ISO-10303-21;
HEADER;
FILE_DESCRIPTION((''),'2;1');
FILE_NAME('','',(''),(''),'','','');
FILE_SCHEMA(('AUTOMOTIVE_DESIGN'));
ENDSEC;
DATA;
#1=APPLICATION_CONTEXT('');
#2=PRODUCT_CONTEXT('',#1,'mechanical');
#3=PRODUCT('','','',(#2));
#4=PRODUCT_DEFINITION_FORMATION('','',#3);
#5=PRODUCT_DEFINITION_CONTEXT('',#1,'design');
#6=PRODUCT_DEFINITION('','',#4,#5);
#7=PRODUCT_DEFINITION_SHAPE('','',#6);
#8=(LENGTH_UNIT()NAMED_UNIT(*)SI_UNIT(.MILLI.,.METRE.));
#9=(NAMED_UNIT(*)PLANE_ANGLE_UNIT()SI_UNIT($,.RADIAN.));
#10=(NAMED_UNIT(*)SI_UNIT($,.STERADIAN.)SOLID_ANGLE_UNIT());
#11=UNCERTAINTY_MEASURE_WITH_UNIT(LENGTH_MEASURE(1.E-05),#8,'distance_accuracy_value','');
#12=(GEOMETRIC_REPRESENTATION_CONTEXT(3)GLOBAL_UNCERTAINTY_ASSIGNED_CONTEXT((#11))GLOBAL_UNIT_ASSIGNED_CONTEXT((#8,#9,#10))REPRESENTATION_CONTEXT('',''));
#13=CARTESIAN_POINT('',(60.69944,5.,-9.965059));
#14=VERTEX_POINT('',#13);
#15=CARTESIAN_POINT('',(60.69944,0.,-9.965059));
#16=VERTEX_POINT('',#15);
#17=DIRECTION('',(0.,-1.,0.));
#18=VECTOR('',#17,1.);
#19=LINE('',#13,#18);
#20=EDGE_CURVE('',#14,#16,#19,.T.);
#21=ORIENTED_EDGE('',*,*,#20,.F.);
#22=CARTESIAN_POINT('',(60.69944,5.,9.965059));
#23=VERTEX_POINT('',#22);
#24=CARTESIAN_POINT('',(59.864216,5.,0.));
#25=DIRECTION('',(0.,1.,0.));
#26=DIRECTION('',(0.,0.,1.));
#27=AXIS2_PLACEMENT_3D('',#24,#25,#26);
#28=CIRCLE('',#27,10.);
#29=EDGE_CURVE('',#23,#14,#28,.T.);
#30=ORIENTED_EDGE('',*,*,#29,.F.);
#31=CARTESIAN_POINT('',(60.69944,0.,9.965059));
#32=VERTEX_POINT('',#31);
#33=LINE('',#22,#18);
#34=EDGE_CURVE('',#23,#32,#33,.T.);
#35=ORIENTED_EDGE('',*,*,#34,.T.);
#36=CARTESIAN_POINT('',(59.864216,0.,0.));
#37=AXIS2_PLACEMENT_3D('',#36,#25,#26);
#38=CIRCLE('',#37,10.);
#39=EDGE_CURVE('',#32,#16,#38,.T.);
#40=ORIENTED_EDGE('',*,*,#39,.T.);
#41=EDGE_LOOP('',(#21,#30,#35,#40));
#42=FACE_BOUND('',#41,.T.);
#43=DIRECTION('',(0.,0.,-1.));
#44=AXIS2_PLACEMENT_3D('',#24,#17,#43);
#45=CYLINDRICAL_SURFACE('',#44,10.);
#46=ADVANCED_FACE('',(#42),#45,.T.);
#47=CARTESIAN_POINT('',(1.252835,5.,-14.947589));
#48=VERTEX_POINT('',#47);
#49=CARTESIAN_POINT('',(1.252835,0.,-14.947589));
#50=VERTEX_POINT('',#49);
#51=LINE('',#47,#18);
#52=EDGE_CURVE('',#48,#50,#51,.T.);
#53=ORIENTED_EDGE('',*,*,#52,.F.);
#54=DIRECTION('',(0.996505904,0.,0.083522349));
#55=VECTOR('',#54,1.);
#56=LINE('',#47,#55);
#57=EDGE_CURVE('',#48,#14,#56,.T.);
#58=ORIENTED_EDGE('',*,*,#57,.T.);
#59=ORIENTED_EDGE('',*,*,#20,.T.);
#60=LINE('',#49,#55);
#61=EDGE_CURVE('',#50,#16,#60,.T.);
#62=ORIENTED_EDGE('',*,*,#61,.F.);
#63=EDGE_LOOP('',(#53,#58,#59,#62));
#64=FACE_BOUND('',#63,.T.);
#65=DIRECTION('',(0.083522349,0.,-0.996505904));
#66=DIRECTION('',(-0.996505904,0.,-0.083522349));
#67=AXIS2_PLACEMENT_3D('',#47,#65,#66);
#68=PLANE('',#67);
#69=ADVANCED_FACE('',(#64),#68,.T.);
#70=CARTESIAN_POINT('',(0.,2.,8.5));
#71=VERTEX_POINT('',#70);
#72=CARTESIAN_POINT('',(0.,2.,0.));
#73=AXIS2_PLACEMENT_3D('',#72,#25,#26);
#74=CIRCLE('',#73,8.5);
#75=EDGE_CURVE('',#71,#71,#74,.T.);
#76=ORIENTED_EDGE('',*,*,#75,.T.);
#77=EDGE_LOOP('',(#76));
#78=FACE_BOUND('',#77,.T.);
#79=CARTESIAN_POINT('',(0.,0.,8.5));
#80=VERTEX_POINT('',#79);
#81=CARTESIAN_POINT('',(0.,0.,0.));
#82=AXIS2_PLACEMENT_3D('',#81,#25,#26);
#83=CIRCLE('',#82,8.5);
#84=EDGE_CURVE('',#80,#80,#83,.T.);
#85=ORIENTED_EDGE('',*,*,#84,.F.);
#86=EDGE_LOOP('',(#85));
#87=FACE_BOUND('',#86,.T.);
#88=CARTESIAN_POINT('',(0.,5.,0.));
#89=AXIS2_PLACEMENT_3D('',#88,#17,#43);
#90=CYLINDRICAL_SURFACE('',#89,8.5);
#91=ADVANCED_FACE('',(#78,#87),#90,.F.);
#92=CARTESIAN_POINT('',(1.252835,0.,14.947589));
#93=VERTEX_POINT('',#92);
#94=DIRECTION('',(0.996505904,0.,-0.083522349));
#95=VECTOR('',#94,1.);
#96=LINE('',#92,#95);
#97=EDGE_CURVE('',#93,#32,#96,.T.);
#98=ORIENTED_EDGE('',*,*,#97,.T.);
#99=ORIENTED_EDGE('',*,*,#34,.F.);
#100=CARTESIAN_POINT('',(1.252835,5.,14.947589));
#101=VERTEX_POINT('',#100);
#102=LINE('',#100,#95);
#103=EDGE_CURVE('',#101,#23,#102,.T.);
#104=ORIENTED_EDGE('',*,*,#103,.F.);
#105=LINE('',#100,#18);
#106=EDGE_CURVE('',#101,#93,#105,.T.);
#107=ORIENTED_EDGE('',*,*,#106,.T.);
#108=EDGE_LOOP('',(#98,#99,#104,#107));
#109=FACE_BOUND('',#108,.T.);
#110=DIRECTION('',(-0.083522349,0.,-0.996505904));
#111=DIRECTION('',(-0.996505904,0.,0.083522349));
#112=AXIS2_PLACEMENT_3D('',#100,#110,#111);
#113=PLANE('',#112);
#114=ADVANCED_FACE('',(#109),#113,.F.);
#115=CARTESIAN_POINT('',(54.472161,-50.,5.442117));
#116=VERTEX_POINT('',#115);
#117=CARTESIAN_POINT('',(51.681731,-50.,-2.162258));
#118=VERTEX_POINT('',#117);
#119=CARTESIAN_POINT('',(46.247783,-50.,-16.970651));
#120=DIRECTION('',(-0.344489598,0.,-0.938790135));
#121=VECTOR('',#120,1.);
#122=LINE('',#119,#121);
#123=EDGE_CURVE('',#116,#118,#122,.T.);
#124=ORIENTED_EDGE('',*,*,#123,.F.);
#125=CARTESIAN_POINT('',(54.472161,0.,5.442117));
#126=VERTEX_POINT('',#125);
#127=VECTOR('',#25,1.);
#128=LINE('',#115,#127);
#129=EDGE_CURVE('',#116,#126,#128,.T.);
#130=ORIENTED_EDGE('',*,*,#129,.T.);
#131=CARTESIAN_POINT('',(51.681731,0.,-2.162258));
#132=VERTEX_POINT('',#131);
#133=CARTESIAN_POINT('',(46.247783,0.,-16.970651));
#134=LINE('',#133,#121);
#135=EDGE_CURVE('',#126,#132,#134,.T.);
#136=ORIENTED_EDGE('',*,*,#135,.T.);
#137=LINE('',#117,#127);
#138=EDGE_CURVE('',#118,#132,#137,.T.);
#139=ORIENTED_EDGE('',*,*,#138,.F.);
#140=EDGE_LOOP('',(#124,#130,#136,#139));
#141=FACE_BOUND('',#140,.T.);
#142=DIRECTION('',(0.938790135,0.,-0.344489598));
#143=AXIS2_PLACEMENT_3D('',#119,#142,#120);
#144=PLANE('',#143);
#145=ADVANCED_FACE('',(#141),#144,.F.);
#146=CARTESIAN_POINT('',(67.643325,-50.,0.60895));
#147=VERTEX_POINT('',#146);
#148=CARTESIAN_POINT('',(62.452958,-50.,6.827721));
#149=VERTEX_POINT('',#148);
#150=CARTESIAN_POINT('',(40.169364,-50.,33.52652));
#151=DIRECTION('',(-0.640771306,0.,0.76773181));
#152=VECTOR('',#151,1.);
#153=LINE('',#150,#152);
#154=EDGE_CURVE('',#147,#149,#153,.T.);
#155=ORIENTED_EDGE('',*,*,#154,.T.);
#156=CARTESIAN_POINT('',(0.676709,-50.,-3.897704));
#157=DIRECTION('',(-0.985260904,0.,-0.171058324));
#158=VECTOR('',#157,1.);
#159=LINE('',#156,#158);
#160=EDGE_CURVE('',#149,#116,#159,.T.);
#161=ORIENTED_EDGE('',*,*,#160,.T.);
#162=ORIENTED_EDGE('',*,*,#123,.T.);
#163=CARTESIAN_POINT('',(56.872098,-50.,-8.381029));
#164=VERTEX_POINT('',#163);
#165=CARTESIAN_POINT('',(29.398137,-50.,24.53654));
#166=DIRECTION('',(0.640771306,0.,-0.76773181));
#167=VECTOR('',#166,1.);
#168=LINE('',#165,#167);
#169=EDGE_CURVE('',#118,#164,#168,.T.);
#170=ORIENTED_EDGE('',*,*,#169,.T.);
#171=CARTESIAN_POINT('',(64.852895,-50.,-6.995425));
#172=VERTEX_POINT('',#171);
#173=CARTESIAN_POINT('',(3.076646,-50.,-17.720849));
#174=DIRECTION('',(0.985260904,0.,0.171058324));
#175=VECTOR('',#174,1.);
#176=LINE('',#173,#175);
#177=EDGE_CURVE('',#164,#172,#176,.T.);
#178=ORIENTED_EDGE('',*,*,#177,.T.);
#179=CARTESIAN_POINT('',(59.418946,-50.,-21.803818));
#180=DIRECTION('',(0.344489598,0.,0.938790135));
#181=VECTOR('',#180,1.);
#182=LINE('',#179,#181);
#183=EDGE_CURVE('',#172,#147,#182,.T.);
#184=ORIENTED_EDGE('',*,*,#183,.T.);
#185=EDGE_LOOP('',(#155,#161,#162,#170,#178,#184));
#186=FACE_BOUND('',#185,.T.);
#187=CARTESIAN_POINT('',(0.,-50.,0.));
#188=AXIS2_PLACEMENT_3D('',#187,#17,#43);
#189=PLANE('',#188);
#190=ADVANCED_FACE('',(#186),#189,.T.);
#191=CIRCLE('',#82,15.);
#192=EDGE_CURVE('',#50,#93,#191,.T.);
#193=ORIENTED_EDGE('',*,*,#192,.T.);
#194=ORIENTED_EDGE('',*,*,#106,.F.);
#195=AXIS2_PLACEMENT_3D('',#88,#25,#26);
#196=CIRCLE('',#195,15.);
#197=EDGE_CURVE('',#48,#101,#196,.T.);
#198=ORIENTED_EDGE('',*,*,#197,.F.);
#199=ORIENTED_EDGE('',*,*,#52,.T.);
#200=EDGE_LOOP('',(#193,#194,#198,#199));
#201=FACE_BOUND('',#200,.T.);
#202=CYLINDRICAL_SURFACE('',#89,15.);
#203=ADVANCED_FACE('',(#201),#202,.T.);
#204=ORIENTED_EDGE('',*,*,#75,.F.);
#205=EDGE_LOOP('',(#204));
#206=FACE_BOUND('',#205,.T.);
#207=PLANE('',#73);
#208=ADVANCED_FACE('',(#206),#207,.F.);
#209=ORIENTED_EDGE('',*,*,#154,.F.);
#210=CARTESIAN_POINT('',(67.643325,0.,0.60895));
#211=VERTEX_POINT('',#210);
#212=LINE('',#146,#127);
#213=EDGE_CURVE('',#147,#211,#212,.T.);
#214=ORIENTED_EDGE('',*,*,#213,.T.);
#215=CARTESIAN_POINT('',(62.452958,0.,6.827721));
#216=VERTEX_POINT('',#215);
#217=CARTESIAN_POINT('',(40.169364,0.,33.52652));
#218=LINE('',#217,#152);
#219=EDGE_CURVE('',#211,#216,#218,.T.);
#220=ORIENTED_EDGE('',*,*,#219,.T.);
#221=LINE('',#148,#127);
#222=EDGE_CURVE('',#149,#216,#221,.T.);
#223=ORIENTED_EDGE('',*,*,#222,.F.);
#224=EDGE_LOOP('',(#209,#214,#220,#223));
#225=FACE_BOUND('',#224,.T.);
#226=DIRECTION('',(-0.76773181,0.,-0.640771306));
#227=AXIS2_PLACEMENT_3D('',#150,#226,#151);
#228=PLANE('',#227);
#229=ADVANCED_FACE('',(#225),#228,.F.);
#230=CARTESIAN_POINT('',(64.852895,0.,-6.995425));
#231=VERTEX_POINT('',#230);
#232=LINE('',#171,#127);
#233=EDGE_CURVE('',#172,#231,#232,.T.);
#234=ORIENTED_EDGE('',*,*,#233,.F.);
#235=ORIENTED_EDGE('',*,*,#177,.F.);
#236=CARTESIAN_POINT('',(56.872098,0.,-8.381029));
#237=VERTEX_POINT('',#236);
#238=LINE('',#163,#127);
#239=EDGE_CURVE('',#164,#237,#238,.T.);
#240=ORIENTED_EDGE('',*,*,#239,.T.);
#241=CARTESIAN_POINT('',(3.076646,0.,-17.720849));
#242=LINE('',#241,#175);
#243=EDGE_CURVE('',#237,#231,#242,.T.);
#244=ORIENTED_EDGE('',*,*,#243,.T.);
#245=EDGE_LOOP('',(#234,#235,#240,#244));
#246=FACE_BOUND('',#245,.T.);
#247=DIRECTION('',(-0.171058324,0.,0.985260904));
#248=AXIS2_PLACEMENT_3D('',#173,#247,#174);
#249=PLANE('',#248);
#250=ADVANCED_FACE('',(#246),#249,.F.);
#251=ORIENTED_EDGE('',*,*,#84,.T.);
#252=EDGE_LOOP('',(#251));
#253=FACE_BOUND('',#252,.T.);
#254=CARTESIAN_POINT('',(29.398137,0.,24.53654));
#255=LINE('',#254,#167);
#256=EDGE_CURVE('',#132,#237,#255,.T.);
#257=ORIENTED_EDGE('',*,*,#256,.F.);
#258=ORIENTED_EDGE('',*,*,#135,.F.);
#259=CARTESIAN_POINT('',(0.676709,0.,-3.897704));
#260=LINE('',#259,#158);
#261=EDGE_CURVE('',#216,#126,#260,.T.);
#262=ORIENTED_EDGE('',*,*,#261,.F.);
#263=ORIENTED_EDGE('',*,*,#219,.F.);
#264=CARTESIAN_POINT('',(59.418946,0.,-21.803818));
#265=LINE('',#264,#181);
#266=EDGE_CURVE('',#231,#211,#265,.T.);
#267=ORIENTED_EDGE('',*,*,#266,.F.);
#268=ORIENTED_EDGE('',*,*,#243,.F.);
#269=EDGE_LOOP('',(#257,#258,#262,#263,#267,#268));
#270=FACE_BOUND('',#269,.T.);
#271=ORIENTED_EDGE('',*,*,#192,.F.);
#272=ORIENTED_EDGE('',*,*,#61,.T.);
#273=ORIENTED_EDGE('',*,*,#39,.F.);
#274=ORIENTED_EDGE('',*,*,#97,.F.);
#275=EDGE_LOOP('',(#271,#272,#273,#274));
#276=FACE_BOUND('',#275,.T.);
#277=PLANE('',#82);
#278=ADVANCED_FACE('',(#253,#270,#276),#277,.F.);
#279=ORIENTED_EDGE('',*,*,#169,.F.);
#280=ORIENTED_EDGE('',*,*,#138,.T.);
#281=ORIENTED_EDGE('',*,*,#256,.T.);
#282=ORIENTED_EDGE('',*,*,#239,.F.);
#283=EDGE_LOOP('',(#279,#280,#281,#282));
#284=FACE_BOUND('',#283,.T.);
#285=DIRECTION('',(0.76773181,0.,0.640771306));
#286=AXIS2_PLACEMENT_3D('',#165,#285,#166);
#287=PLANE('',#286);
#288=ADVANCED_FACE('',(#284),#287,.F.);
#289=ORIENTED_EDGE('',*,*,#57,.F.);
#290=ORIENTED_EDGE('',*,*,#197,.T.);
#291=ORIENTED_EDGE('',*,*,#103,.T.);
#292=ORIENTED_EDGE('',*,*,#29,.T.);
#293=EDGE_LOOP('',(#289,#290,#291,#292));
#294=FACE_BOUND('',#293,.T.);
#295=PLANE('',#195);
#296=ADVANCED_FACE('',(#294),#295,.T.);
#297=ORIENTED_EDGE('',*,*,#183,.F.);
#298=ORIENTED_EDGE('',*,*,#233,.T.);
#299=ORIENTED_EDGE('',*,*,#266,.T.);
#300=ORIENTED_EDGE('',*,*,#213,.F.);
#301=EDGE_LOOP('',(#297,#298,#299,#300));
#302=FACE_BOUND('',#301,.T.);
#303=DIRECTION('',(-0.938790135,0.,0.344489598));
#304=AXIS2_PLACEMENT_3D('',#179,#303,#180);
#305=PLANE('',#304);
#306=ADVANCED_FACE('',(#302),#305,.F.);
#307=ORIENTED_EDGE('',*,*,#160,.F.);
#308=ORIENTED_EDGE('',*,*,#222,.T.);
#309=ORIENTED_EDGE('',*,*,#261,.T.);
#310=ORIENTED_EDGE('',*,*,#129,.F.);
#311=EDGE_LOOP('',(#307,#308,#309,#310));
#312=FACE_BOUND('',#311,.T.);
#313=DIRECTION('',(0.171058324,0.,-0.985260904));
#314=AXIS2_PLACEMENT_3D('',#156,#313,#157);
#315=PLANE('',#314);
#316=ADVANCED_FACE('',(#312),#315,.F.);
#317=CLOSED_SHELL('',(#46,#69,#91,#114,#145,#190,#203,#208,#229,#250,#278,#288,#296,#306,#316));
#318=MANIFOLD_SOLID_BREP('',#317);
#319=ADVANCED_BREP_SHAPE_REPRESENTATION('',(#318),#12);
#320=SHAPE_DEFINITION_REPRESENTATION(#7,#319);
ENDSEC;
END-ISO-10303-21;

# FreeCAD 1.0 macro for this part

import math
import FreeCAD as App
import Part
import Sketcher
Q = App.Units.Quantity

doc = App.newDocument("Part")
body = doc.addObject("PartDesign::Body", "Body")

# Sketch on XZ plane
sketch1 = body.newObject("Sketcher::SketchObject", "Sketch")
sketch1.AttachmentSupport = (doc.getObject("XZ_Plane"), [""])
sketch1.MapMode = "FlatFace"
sketch1.addGeometry([
    Part.ArcOfCircle(Part.Circle(App.Vector(0, 0, 0), App.Vector(0, 0, 1), 15), math.radians(85), math.radians(275)),  # 0
    Part.LineSegment(App.Vector(1, 15, 0), App.Vector(61, 10, 0)),  # 1
    Part.ArcOfCircle(Part.Circle(App.Vector(60, 0, 0), App.Vector(0, 0, 1), 10), math.radians(-85), math.radians(85)),  # 2
    Part.LineSegment(App.Vector(61, -10, 0), App.Vector(1, -15, 0)),  # 3
    Part.Circle(App.Vector(0, 0, 0), App.Vector(0, 0, 1), 8),  # 4
], False)
sketch1.addConstraint([
    Sketcher.Constraint("Tangent", 0, 1, 1, 1),
    Sketcher.Constraint("Tangent", 1, 2, 2, 2),
    Sketcher.Constraint("Tangent", 2, 1, 3, 1),
    Sketcher.Constraint("Tangent", 3, 2, 0, 2),
    Sketcher.Constraint("Coincident", 0, 3, -1, 1),
    Sketcher.Constraint("Coincident", 4, 3, -1, 1),
    Sketcher.Constraint("PointOnObject", 2, 3, -1),
    Sketcher.Constraint("Diameter", 4, Q("17 mm")),
    Sketcher.Constraint("Radius", 0, Q("15 mm")),
    Sketcher.Constraint("Radius", 2, Q("10 mm")),
    Sketcher.Constraint("DistanceX", -1, 1, 1, 2, Q("60.69944 mm")),
])
pad1 = body.newObject("PartDesign::Pad", "Pad")
pad1.Profile = sketch1
pad1.Length = 5
pad1.Reversed = True

# Sketch on XZ plane
sketch2 = body.newObject("Sketcher::SketchObject", "Sketch001")
sketch2.AttachmentSupport = (doc.getObject("XZ_Plane"), [""])
sketch2.MapMode = "FlatFace"
sketch2.AttachmentOffset = App.Placement(App.Vector(0, 0, -2), App.Rotation())
sketch2.addGeometry(Part.Circle(App.Vector(0, 0, 0), App.Vector(0, 0, 1), 8), False)
sketch2.addConstraint([
    Sketcher.Constraint("Coincident", 0, 3, -1, 1),
    Sketcher.Constraint("Diameter", 0, Q("17 mm")),
])
pad2 = body.newObject("PartDesign::Pad", "Pad001")
pad2.Profile = sketch2
pad2.Length = 3
pad2.Reversed = True

# Sketch on XZ plane
sketch3 = body.newObject("Sketcher::SketchObject", "Sketch002")
sketch3.AttachmentSupport = (doc.getObject("XZ_Plane"), [""])
sketch3.MapMode = "FlatFace"
sketch3.addGeometry([
    Part.LineSegment(App.Vector(54.28, -5.28, 0), App.Vector(56.87, -8.38, 0)),  # 0
    Part.LineSegment(App.Vector(56.87, -8.38, 0), App.Vector(64.85, -7, 0)),  # 1
    Part.LineSegment(App.Vector(64.85, -7, 0), App.Vector(67.64, 0.61, 0)),  # 2
    Part.LineSegment(App.Vector(67.64, 0.61, 0), App.Vector(62.45, 6.83, 0)),  # 3
    Part.LineSegment(App.Vector(62.45, 6.83, 0), App.Vector(54.47, 5.44, 0)),  # 4
    Part.LineSegment(App.Vector(54.47, 5.44, 0), App.Vector(54.21, 4.72, 0)),  # 5
    Part.LineSegment(App.Vector(54.21, 4.72, 0), App.Vector(54.16, 4.6, 0)),  # 6
    Part.LineSegment(App.Vector(54.16, 4.6, 0), App.Vector(51.68, -2.16, 0)),  # 7
    Part.LineSegment(App.Vector(51.68, -2.16, 0), App.Vector(54.16, -5.13, 0)),  # 8
    Part.LineSegment(App.Vector(54.16, -5.13, 0), App.Vector(54.28, -5.28, 0)),  # 9
], False)
sketch3.addConstraint([
    Sketcher.Constraint("Coincident", 0, 2, 1, 1),
    Sketcher.Constraint("Coincident", 1, 2, 2, 1),
    Sketcher.Constraint("Coincident", 2, 2, 3, 1),
    Sketcher.Constraint("Coincident", 3, 2, 4, 1),
    Sketcher.Constraint("Coincident", 4, 2, 5, 1),
    Sketcher.Constraint("Coincident", 5, 2, 6, 1),
    Sketcher.Constraint("Coincident", 6, 2, 7, 1),
    Sketcher.Constraint("Coincident", 7, 2, 8, 1),
    Sketcher.Constraint("Coincident", 8, 2, 9, 1),
    Sketcher.Constraint("Coincident", 9, 2, 0, 1),
    Sketcher.Constraint("Parallel", 0, 3),
    Sketcher.Constraint("Parallel", 1, 4),
    Sketcher.Constraint("Parallel", 2, 5),
    Sketcher.Constraint("Parallel", 5, 6),
    Sketcher.Constraint("Parallel", 6, 7),
    Sketcher.Constraint("Parallel", 3, 8),
    Sketcher.Constraint("Parallel", 8, 9),
    Sketcher.Constraint("Vertical", 6, 2, 8, 2),
    Sketcher.Constraint("Equal", 1, 2),
    Sketcher.Constraint("Equal", 2, 3),
    Sketcher.Constraint("Equal", 3, 4),
    Sketcher.Constraint("DistanceY", 9, 2, 5, 2, Q("10 mm")),
    Sketcher.Constraint("DistanceX", -1, 1, 0, 2, Q("56.872098 mm")),
    Sketcher.Constraint("DistanceY", -1, 1, 6, 2, Q("4.595098 mm")),
    Sketcher.Constraint("Distance", 7, Q("7.197942 mm")),
    Sketcher.Constraint("DistanceY", 0, 2, -1, 1, Q("8.381029 mm")),
    Sketcher.Constraint("DistanceY", -1, 1, 2, 2, Q("0.60895 mm")),
    Sketcher.Constraint("DistanceY", -1, 1, 3, 2, Q("6.827721 mm")),
    Sketcher.Constraint("DistanceX", -1, 1, 4, 2, Q("54.472161 mm")),
    Sketcher.Constraint("DistanceX", -1, 1, 5, 2, Q("54.208841 mm")),
])
pad3 = body.newObject("PartDesign::Pad", "Pad002")
pad3.Profile = sketch3
pad3.Length = 50

doc.recompute()
